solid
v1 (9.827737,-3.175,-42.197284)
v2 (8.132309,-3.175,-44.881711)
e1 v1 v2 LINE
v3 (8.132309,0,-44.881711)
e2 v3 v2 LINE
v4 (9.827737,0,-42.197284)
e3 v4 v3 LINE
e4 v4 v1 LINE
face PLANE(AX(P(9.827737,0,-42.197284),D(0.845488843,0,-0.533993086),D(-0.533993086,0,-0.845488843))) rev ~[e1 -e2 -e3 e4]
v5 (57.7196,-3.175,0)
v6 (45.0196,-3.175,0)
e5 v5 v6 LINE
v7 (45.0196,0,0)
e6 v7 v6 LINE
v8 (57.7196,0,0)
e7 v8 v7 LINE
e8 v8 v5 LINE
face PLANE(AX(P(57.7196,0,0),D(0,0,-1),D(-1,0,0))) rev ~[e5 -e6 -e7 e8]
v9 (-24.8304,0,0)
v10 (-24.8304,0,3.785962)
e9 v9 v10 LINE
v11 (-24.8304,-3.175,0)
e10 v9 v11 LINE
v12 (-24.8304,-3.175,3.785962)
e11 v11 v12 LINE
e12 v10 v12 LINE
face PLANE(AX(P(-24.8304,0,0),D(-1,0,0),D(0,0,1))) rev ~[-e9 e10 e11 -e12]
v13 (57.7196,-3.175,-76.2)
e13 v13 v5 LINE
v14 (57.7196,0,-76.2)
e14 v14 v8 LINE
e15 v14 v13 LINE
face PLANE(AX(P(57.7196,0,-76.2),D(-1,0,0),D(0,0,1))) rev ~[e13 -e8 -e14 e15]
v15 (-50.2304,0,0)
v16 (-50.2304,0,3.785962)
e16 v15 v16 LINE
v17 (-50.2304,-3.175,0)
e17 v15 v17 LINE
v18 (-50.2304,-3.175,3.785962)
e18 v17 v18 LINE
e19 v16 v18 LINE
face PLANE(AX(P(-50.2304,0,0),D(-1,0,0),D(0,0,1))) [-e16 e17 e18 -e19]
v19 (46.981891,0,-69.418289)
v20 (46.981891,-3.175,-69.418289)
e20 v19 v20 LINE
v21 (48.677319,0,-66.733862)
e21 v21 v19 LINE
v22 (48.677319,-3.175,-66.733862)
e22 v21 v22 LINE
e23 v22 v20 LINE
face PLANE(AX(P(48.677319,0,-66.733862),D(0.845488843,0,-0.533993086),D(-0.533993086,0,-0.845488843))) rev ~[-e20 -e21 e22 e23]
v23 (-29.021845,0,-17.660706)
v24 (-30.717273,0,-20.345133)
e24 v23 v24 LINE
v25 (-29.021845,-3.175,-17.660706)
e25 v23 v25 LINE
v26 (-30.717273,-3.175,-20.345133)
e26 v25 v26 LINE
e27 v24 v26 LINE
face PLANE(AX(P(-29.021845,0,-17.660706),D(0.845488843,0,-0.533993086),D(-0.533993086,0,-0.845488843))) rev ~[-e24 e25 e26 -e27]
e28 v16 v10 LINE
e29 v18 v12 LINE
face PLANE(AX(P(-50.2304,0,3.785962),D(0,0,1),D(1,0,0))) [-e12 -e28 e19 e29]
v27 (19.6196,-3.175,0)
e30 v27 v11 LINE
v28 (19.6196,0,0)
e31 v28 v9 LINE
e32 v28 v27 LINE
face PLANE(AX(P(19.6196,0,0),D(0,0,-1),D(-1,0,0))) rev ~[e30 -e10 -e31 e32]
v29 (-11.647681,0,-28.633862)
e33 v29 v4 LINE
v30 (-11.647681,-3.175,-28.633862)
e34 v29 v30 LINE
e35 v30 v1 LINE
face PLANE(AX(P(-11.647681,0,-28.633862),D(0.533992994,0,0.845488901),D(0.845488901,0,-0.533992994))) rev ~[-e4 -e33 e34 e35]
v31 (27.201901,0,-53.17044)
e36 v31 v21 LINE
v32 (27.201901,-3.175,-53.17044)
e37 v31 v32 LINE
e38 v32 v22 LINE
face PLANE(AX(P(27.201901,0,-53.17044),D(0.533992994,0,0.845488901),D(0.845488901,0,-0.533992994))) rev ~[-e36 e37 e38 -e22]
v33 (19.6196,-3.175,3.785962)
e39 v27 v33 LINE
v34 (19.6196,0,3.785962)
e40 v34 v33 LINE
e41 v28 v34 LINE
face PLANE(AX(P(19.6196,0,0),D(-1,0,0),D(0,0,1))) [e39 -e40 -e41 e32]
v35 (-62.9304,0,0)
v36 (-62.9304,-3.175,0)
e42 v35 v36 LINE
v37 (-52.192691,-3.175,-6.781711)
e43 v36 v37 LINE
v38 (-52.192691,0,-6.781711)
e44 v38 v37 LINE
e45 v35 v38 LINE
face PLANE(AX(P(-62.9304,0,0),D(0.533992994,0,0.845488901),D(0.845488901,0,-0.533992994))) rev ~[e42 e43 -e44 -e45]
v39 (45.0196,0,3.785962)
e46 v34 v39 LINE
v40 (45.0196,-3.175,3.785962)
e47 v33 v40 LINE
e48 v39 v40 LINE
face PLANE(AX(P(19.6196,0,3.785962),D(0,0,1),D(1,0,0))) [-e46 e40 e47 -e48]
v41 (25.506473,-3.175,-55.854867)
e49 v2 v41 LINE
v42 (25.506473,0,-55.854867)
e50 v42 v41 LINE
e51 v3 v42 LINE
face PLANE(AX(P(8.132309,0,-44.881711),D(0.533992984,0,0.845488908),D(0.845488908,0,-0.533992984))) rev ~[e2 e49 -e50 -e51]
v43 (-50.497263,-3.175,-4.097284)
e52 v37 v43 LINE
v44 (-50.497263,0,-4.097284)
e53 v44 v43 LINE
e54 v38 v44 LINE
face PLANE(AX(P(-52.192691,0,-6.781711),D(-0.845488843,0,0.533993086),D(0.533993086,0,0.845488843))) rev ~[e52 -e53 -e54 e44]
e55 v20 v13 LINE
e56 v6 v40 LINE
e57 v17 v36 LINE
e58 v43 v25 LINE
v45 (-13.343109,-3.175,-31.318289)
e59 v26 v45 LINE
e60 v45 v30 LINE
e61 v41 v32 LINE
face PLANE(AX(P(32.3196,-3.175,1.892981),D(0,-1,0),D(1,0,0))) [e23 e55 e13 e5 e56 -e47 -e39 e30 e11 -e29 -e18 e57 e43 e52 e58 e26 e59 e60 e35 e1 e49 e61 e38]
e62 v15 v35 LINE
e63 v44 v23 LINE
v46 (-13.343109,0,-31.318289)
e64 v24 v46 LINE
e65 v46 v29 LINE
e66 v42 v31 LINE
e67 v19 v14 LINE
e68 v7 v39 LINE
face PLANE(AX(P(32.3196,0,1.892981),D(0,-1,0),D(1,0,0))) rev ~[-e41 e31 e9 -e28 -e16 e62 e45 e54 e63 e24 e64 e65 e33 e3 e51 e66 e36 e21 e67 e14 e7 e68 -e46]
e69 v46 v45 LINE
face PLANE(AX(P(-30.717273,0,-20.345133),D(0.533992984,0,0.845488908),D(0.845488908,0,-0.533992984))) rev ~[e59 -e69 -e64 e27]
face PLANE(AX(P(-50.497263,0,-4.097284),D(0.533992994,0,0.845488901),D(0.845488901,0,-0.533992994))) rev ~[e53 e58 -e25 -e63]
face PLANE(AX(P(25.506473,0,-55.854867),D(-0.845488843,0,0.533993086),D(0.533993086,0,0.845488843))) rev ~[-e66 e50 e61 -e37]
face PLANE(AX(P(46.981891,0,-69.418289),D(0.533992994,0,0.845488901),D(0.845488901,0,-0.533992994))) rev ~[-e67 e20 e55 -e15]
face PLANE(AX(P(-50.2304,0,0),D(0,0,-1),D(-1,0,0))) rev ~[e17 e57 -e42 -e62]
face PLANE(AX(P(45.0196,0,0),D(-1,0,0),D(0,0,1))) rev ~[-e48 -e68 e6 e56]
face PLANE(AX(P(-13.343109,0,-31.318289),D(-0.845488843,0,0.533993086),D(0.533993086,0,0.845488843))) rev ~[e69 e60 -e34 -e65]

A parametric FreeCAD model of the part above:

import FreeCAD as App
import Part
import Sketcher

V = App.Vector
Q = App.Units.Quantity

doc = App.newDocument("Part")
params = doc.addObject("Spreadsheet::Sheet", "Params")
for row, (alias, value) in enumerate([
    ("sketch1_width", "1 in"),
    ("sketch1_height", "3 in"),
    ("sketch1_length", "1 in"),
    ("sketch1_width2", "0.5 in"),
    ("sketch1_length2", "0.5 in"),
    ("pad1_length", "0.125 in"),
], start=1):
    params.set(f"A{row}", alias)
    params.set(f"B{row}", "=" + value)
    params.setAlias(f"B{row}", alias)

body = doc.addObject("PartDesign::Body", "Body")

# Sketch on XZ plane
sketch1 = doc.addObject("Sketcher::SketchObject", "Sketch")
body.addObject(sketch1)
sketch1.AttachmentSupport = (doc.XZ_Plane, [""])
sketch1.MapMode = "FlatFace"
sketch1.addGeometry([
    Part.LineSegment(V(19.6, 3.8, 0), V(19.6, 0, 0)),  # 0
    Part.LineSegment(V(19.6, 0, 0), V(-24.8, 0, 0)),  # 1
    Part.LineSegment(V(-24.8, 0, 0), V(-24.8, 3.8, 0)),  # 2
    Part.LineSegment(V(-24.8, 3.8, 0), V(-50.2, 3.8, 0)),  # 3
    Part.LineSegment(V(-50.2, 3.8, 0), V(-50.2, 0, 0)),  # 4
    Part.LineSegment(V(-50.2, 0, 0), V(-62.9, 0, 0)),  # 5
    Part.LineSegment(V(-62.9, 0, 0), V(-52.2, -6.8, 0)),  # 6
    Part.LineSegment(V(-52.2, -6.8, 0), V(-50.5, -4.1, 0)),  # 7
    Part.LineSegment(V(-50.5, -4.1, 0), V(-29, -17.7, 0)),  # 8
    Part.LineSegment(V(-29, -17.7, 0), V(-30.7, -20.3, 0)),  # 9
    Part.LineSegment(V(-30.7, -20.3, 0), V(-13.3, -31.3, 0)),  # 10
    Part.LineSegment(V(-13.3, -31.3, 0), V(-11.6, -28.6, 0)),  # 11
    Part.LineSegment(V(-11.6, -28.6, 0), V(9.8, -42.2, 0)),  # 12
    Part.LineSegment(V(9.8, -42.2, 0), V(8.1, -44.9, 0)),  # 13
    Part.LineSegment(V(8.1, -44.9, 0), V(25.5, -55.9, 0)),  # 14
    Part.LineSegment(V(25.5, -55.9, 0), V(27.2, -53.2, 0)),  # 15
    Part.LineSegment(V(27.2, -53.2, 0), V(48.7, -66.7, 0)),  # 16
    Part.LineSegment(V(48.7, -66.7, 0), V(47, -69.4, 0)),  # 17
    Part.LineSegment(V(47, -69.4, 0), V(57.7, -76.2, 0)),  # 18
    Part.LineSegment(V(57.7, -76.2, 0), V(57.7, 0, 0)),  # 19
    Part.LineSegment(V(57.7, 0, 0), V(45, 0, 0)),  # 20
    Part.LineSegment(V(45, 0, 0), V(45, 3.8, 0)),  # 21
    Part.LineSegment(V(45, 3.8, 0), V(19.6, 3.8, 0)),  # 22
], False)
sketch1.addConstraint([
    Sketcher.Constraint("Coincident", 0, 2, 1, 1),
    Sketcher.Constraint("Coincident", 1, 2, 2, 1),
    Sketcher.Constraint("Coincident", 2, 2, 3, 1),
    Sketcher.Constraint("Coincident", 3, 2, 4, 1),
    Sketcher.Constraint("Coincident", 4, 2, 5, 1),
    Sketcher.Constraint("Coincident", 5, 2, 6, 1),
    Sketcher.Constraint("Coincident", 6, 2, 7, 1),
    Sketcher.Constraint("Coincident", 7, 2, 8, 1),
    Sketcher.Constraint("Coincident", 8, 2, 9, 1),
    Sketcher.Constraint("Coincident", 9, 2, 10, 1),
    Sketcher.Constraint("Coincident", 10, 2, 11, 1),
    Sketcher.Constraint("Coincident", 11, 2, 12, 1),
    Sketcher.Constraint("Coincident", 12, 2, 13, 1),
    Sketcher.Constraint("Coincident", 13, 2, 14, 1),
    Sketcher.Constraint("Coincident", 14, 2, 15, 1),
    Sketcher.Constraint("Coincident", 15, 2, 16, 1),
    Sketcher.Constraint("Coincident", 16, 2, 17, 1),
    Sketcher.Constraint("Coincident", 17, 2, 18, 1),
    Sketcher.Constraint("Coincident", 18, 2, 19, 1),
    Sketcher.Constraint("Coincident", 19, 2, 20, 1),
    Sketcher.Constraint("Coincident", 20, 2, 21, 1),
    Sketcher.Constraint("Coincident", 21, 2, 22, 1),
    Sketcher.Constraint("Coincident", 22, 2, 0, 1),
    Sketcher.Constraint("Vertical", 0),
    Sketcher.Constraint("Horizontal", 1),
    Sketcher.Constraint("Vertical", 2),
    Sketcher.Constraint("Horizontal", 3),
    Sketcher.Constraint("Vertical", 4),
    Sketcher.Constraint("Horizontal", 5),
    Sketcher.Constraint("Vertical", 19),
    Sketcher.Constraint("Horizontal", 20),
    Sketcher.Constraint("Vertical", 21),
    Sketcher.Constraint("Horizontal", 22),
    Sketcher.Constraint("PointOnObject", 0, 2, -1),
    Sketcher.Constraint("PointOnObject", 4, 2, -1),
    Sketcher.Constraint("PointOnObject", 19, 2, -1),
    Sketcher.Constraint("Perpendicular", 6, 7),
    Sketcher.Constraint("Perpendicular", 7, 8),
    Sketcher.Constraint("Perpendicular", 8, 9),
    Sketcher.Constraint("Perpendicular", 9, 10),
    Sketcher.Constraint("Perpendicular", 10, 11),
    Sketcher.Constraint("Perpendicular", 11, 12),
    Sketcher.Constraint("Perpendicular", 12, 13),
    Sketcher.Constraint("Perpendicular", 13, 14),
    Sketcher.Constraint("Perpendicular", 14, 15),
    Sketcher.Constraint("Perpendicular", 15, 16),
    Sketcher.Constraint("Perpendicular", 16, 17),
    Sketcher.Constraint("Perpendicular", 17, 18),
    Sketcher.Constraint("Horizontal", 3, 2, 21, 2),
    Sketcher.Constraint("Equal", 5, 20),
    Sketcher.Constraint("Equal", 3, 22),
    Sketcher.Constraint("Equal", 7, 9),
    Sketcher.Constraint("Equal", 9, 11),
    Sketcher.Constraint("Equal", 8, 12),
    Sketcher.Constraint("Equal", 11, 13),
    Sketcher.Constraint("Equal", 10, 14),
    Sketcher.Constraint("Equal", 13, 15),
    Sketcher.Constraint("Equal", 12, 16),
    Sketcher.Constraint("Equal", 15, 17),
    Sketcher.Constraint("Equal", 6, 18),
    Sketcher.Constraint("DistanceX", 3, 2, 3, 1, Q("1 in")),
    Sketcher.Constraint("DistanceY", 19, 1, 19, 2, Q("3 in")),
    Sketcher.Constraint("Distance", 8, Q("1 in")),
    Sketcher.Constraint("DistanceX", 5, 2, 5, 1, Q("0.5 in")),
    Sketcher.Constraint("Distance", 6, Q("0.5 in")),
    Sketcher.Constraint("DistanceX", 1, 2, 1, 1, Q("1.75 in")),
    Sketcher.Constraint("Distance", 7, Q("0.125 in")),
    Sketcher.Constraint("DistanceY", 0, 2, 0, 1, Q("3.785962 mm")),
    Sketcher.Constraint("DistanceX", -1, 1, 0, 2, Q("19.6196 mm")),
])
sketch1.setExpression("Constraints[60]", "Params.sketch1_width")
sketch1.setExpression("Constraints[61]", "Params.sketch1_height")
sketch1.setExpression("Constraints[62]", "Params.sketch1_length")
sketch1.setExpression("Constraints[63]", "Params.sketch1_width2")
sketch1.setExpression("Constraints[64]", "Params.sketch1_length2")
pad1 = doc.addObject("PartDesign::Pad", "Pad")
body.addObject(pad1)
pad1.Profile = sketch1
pad1.setExpression("Length", "Params.pad1_length")

doc.recompute()
